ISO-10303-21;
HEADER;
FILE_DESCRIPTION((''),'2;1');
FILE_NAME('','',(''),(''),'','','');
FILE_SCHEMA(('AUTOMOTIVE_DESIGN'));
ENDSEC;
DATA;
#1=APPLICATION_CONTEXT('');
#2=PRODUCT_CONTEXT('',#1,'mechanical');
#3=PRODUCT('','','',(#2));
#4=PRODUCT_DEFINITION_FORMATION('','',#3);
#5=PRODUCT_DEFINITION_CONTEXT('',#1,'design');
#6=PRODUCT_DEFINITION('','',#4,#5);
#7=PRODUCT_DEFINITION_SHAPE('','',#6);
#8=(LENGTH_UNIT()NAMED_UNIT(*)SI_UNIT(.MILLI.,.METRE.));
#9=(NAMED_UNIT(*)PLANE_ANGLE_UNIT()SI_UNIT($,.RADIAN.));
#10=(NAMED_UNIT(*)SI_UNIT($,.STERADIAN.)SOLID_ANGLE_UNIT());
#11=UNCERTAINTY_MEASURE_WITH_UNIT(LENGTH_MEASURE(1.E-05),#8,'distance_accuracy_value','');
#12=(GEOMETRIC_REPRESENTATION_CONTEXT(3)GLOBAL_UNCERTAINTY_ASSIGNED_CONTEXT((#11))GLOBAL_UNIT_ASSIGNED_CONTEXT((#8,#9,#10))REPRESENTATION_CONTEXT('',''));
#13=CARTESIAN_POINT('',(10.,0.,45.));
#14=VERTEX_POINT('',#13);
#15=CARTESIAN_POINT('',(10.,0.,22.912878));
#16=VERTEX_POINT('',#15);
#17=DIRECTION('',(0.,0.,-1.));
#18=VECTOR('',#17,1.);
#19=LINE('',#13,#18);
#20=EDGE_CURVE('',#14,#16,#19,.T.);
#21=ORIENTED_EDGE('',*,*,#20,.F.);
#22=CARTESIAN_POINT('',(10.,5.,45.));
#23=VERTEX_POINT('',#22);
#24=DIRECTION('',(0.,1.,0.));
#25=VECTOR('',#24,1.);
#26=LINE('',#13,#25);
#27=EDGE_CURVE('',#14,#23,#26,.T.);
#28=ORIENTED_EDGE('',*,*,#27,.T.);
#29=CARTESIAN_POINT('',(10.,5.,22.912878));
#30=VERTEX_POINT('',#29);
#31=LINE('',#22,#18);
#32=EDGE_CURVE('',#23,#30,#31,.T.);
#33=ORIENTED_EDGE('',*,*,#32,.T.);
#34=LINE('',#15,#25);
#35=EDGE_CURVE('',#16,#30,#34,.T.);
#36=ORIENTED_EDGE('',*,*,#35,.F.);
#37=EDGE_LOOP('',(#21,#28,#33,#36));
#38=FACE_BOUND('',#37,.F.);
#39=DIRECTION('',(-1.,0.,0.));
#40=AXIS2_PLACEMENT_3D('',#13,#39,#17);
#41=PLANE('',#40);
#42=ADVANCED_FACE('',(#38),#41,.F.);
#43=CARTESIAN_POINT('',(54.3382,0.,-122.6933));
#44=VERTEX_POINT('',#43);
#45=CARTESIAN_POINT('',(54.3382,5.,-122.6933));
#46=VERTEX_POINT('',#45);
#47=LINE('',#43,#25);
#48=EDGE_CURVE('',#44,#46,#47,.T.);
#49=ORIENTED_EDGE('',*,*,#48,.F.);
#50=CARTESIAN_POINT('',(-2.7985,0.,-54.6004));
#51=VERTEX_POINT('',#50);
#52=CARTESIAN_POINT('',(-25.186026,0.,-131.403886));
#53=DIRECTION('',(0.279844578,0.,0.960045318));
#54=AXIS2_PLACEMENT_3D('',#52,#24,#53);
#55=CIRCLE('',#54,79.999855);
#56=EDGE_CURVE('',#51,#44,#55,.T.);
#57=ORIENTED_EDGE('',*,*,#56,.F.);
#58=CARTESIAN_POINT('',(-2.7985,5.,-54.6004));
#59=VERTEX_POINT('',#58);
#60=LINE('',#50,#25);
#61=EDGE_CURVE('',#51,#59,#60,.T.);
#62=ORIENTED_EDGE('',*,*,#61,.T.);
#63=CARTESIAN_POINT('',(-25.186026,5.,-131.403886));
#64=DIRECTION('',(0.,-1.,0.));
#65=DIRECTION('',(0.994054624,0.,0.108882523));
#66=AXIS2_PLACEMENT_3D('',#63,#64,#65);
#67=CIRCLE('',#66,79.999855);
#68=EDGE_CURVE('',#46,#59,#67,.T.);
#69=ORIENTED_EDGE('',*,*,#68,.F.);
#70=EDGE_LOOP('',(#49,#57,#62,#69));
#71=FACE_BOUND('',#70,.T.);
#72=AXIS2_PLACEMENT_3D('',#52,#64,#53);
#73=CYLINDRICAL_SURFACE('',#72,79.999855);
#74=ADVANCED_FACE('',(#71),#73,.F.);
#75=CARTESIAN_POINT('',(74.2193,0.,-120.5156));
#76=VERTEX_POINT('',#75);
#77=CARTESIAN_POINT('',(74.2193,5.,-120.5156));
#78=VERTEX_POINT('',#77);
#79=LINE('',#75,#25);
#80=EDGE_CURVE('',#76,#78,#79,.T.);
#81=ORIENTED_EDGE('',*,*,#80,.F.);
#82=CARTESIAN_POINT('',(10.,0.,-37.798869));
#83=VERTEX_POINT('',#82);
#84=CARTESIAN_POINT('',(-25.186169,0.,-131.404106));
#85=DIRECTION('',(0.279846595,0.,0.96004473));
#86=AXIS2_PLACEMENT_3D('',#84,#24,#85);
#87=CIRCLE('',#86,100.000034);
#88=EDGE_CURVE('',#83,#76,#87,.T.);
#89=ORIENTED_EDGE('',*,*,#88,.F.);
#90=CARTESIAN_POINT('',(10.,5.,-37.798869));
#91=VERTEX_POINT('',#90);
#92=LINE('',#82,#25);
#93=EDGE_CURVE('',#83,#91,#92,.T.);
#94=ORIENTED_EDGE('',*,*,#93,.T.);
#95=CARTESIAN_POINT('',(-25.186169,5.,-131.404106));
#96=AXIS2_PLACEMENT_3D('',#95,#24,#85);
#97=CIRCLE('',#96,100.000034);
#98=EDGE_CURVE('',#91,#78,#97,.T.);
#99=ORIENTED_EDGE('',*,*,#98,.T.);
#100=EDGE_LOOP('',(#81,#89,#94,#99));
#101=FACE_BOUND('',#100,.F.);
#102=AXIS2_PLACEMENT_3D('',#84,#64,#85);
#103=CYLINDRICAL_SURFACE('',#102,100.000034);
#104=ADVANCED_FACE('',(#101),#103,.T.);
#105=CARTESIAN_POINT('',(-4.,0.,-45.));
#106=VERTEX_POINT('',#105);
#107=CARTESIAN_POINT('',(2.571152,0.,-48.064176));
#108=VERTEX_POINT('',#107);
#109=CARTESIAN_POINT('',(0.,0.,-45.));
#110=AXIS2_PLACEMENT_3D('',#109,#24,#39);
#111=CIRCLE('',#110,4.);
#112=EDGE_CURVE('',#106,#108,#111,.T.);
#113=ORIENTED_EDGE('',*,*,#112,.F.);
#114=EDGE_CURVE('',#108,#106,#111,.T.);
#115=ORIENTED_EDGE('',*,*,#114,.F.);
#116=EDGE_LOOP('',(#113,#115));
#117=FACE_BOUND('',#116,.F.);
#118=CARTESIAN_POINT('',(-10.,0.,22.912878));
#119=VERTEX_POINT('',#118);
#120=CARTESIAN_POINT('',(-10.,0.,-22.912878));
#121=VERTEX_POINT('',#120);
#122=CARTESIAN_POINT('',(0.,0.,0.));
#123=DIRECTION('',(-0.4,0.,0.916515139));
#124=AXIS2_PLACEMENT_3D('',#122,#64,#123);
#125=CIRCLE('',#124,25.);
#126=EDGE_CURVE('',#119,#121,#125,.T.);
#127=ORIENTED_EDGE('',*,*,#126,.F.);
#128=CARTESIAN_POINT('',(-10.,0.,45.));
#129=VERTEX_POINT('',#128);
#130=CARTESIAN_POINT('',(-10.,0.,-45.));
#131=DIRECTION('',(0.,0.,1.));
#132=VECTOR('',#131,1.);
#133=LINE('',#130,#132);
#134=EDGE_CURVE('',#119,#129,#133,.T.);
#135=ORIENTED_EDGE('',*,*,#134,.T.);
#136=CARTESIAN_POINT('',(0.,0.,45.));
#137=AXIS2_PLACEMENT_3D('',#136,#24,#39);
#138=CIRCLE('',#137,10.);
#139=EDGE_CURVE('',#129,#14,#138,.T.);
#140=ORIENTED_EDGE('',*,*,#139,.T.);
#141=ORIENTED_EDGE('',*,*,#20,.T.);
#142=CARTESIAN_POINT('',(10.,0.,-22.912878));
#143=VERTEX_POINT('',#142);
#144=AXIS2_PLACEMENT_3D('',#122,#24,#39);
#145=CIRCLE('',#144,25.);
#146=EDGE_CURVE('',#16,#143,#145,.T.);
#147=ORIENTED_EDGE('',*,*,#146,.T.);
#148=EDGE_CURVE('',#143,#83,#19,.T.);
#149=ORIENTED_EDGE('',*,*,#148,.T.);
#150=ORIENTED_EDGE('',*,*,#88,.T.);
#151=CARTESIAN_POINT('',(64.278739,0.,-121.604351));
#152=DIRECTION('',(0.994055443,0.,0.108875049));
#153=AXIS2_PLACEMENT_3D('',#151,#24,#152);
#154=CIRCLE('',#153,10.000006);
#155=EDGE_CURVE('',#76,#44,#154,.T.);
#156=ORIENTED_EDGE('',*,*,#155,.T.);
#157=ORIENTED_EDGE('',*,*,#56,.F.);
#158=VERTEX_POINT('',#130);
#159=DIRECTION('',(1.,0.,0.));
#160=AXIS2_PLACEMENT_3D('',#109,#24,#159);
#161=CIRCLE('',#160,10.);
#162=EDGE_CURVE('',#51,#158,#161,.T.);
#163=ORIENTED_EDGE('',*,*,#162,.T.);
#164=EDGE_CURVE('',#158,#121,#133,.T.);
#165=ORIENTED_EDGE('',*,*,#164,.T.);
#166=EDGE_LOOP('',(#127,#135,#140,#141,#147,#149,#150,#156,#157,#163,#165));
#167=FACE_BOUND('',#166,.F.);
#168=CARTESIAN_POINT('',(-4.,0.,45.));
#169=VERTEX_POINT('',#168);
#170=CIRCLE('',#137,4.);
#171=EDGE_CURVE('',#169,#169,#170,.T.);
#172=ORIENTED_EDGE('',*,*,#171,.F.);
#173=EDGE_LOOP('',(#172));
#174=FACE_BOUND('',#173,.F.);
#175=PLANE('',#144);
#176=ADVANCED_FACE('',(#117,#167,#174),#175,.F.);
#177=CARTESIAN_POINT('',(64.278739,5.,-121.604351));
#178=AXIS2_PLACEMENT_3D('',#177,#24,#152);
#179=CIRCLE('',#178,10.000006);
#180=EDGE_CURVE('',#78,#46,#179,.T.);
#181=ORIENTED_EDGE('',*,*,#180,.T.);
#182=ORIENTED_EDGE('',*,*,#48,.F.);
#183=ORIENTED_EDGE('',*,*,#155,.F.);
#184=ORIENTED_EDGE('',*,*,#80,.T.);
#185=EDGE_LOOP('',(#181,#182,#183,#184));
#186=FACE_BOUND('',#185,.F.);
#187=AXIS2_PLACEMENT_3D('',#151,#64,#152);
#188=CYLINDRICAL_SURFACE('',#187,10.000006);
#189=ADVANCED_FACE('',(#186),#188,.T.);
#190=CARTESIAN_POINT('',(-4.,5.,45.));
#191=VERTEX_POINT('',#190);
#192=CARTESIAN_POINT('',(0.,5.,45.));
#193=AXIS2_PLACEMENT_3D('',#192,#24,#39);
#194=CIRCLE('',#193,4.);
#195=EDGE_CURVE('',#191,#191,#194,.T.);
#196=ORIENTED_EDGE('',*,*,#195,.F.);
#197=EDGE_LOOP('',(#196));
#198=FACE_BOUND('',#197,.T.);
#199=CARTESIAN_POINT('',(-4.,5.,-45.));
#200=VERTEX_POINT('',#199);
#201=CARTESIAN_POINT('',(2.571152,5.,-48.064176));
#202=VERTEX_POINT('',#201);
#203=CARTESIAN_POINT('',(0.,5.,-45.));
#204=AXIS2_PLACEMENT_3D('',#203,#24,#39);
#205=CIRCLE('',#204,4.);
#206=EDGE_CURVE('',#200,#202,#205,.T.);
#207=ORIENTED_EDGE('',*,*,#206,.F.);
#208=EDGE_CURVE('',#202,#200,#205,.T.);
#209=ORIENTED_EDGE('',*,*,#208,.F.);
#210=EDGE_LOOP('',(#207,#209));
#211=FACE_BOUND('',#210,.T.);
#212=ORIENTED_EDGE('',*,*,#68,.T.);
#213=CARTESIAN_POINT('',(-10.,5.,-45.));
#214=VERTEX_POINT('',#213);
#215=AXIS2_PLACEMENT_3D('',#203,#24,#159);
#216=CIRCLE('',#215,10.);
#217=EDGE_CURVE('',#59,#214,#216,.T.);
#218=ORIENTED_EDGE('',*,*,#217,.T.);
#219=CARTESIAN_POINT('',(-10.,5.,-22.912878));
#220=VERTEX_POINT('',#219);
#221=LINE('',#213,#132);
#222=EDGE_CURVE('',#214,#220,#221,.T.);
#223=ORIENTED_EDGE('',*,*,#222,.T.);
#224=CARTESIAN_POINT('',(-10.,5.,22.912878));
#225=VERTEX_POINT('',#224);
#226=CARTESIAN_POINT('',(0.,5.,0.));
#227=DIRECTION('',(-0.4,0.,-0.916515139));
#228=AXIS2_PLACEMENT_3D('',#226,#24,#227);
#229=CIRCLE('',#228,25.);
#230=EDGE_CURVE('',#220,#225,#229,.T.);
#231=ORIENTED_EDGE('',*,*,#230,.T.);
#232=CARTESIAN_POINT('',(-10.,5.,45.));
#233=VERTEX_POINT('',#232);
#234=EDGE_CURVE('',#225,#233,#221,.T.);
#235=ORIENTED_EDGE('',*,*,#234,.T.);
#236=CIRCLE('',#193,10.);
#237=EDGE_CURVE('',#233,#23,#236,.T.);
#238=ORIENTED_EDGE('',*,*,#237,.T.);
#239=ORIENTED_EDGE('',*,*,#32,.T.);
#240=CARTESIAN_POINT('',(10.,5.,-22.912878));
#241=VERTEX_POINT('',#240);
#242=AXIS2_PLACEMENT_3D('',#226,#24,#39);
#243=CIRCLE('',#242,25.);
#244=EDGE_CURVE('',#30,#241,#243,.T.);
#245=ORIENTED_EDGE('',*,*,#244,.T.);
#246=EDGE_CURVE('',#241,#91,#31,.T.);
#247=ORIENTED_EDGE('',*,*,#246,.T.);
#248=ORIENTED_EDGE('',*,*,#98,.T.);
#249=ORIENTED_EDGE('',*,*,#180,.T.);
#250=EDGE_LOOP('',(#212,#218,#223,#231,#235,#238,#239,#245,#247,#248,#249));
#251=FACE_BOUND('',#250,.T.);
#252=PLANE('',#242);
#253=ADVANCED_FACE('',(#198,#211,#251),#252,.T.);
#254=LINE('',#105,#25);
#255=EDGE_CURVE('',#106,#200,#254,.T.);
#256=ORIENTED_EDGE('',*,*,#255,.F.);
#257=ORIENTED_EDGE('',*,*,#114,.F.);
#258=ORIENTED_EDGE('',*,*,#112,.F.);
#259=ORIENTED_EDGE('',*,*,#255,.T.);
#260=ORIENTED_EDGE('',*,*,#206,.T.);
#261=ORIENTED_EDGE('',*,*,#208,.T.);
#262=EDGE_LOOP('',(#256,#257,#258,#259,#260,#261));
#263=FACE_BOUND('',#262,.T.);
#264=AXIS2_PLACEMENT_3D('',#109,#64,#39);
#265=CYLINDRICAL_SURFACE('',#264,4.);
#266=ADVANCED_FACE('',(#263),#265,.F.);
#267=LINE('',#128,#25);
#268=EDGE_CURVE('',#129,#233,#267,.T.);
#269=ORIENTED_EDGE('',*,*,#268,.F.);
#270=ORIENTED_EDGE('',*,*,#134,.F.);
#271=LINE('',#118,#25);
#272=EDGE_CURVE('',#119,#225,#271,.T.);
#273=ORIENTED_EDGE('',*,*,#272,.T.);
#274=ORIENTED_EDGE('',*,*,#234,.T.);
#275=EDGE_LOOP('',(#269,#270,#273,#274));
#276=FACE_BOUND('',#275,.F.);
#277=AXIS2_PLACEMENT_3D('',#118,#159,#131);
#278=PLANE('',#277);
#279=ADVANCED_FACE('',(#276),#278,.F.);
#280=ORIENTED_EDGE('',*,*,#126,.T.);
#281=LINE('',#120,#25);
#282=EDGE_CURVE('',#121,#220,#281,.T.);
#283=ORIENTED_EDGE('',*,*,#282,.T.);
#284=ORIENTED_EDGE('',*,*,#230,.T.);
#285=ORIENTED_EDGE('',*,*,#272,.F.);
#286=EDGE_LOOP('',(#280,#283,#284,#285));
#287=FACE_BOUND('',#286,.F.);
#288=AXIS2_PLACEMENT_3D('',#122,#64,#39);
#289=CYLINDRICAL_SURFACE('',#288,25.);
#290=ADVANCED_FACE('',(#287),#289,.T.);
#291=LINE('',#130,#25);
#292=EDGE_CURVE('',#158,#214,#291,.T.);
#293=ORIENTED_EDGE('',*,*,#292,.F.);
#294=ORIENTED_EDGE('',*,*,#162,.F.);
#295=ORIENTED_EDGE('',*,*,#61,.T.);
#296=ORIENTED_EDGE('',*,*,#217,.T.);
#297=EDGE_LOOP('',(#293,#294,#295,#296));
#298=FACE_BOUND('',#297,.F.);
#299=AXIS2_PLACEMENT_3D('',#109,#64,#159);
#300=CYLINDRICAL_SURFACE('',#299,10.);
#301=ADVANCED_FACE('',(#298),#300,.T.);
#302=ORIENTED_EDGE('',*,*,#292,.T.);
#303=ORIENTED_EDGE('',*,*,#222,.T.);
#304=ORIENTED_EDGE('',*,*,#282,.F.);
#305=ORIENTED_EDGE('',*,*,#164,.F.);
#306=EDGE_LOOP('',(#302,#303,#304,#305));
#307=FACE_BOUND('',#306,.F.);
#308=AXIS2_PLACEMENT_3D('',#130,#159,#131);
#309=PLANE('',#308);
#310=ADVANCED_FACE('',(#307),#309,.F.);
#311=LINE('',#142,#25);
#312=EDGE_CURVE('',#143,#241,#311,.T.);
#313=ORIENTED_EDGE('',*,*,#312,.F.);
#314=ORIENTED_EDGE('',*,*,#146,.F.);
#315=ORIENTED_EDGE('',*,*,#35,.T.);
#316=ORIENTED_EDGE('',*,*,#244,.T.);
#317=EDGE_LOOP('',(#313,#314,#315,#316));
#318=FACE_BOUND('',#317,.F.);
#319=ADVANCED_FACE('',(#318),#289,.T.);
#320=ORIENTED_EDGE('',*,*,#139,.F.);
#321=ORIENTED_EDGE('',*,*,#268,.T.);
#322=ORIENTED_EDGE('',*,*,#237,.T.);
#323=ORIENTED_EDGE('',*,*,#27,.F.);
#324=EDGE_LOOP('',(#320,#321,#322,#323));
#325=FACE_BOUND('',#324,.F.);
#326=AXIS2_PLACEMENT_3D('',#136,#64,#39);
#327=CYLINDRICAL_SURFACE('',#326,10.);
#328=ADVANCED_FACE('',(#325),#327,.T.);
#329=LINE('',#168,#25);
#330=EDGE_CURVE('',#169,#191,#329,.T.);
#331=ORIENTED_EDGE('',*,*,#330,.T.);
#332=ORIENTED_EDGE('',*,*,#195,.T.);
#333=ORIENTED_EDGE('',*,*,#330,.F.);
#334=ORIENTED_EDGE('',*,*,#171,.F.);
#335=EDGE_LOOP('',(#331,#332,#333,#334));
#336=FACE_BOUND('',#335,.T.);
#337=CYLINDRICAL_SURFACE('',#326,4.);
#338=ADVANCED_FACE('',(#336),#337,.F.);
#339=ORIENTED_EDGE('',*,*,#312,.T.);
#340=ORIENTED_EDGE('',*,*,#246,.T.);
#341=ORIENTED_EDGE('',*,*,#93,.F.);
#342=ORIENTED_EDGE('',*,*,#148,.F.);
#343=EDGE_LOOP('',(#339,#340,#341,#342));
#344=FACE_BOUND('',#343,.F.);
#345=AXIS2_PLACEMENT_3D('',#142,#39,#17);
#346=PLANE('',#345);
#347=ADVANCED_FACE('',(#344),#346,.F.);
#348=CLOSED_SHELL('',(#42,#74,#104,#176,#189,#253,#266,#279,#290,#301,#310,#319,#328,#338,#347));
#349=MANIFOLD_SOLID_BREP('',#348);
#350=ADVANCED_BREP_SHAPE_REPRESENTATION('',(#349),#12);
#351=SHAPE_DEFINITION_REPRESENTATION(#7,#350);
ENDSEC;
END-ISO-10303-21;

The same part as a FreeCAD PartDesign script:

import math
import FreeCAD as App
import Part
import Sketcher
Q = App.Units.Quantity

doc = App.newDocument("Part")
body = doc.addObject("PartDesign::Body", "Body")

sketch1 = body.newObject("Sketcher::SketchObject", "Sketch")
sketch1.AttachmentSupport = (doc.getObject("XZ_Plane"), [""])
sketch1.MapMode = "FlatFace"
sketch1.addGeometry(Part.ArcOfCircle(Part.Circle(App.Vector(0, 45, 0), App.Vector(0, 0, 1), 10), math.radians(0), math.radians(180)), False)
sketch1.addGeometry(Part.LineSegment(App.Vector(10, 45, 0), App.Vector(10, 22.9, 0)), False)
sketch1.addGeometry(Part.ArcOfCircle(Part.Circle(App.Vector(0, 0, 0), App.Vector(0, 0, 1), 25), math.radians(-66), math.radians(66)), False)
sketch1.addGeometry(Part.LineSegment(App.Vector(10, -22.9, 0), App.Vector(10, -37.8, 0)), False)
sketch1.addGeometry(Part.ArcOfCircle(Part.Circle(App.Vector(-25.2, -131.4, 0), App.Vector(0, 0, 1), 100), math.radians(6), math.radians(69)), False)
sketch1.addGeometry(Part.ArcOfCircle(Part.Circle(App.Vector(64.3, -121.6, 0), App.Vector(0, 0, 1), 10), math.radians(-174), math.radians(6)), False)
sketch1.addGeometry(Part.ArcOfCircle(Part.Circle(App.Vector(-25.2, -131.4, 0), App.Vector(0, 0, 1), 80), math.radians(6), math.radians(74)), False)
sketch1.addGeometry(Part.ArcOfCircle(Part.Circle(App.Vector(0, -45, 0), App.Vector(0, 0, 1), 10), math.radians(180), math.radians(254)), False)
sketch1.addGeometry(Part.LineSegment(App.Vector(-10, -45, 0), App.Vector(-10, -22.9, 0)), False)
sketch1.addGeometry(Part.ArcOfCircle(Part.Circle(App.Vector(0, 0, 0), App.Vector(0, 0, 1), 25), math.radians(114), math.radians(246)), False)
sketch1.addGeometry(Part.LineSegment(App.Vector(-10, 22.9, 0), App.Vector(-10, 45, 0)), False)
sketch1.addGeometry(Part.Circle(App.Vector(0, 45, 0), App.Vector(0, 0, 1), 4), False)
sketch1.addGeometry(Part.Circle(App.Vector(0, -45, 0), App.Vector(0, 0, 1), 4), False)
sketch1.addConstraint(Sketcher.Constraint("Tangent", 0, 1, 1, 1))
sketch1.addConstraint(Sketcher.Constraint("Coincident", 1, 2, 2, 2))
sketch1.addConstraint(Sketcher.Constraint("Coincident", 2, 1, 3, 1))
sketch1.addConstraint(Sketcher.Constraint("Coincident", 3, 2, 4, 2))
sketch1.addConstraint(Sketcher.Constraint("Tangent", 4, 1, 5, 2))
sketch1.addConstraint(Sketcher.Constraint("Tangent", 5, 1, 6, 1))
sketch1.addConstraint(Sketcher.Constraint("Tangent", 6, 2, 7, 2))
sketch1.addConstraint(Sketcher.Constraint("Tangent", 7, 1, 8, 1))
sketch1.addConstraint(Sketcher.Constraint("Coincident", 8, 2, 9, 2))
sketch1.addConstraint(Sketcher.Constraint("Coincident", 9, 1, 10, 1))
sketch1.addConstraint(Sketcher.Constraint("Tangent", 10, 2, 0, 2))
sketch1.addConstraint(Sketcher.Constraint("Vertical", 1))
sketch1.addConstraint(Sketcher.Constraint("Vertical", 3))
sketch1.addConstraint(Sketcher.Constraint("Vertical", 8))
sketch1.addConstraint(Sketcher.Constraint("Vertical", 10))
sketch1.addConstraint(Sketcher.Constraint("Coincident", 2, 3, -1, 1))
sketch1.addConstraint(Sketcher.Constraint("Coincident", 9, 3, -1, 1))
sketch1.addConstraint(Sketcher.Constraint("Coincident", 6, 3, 4, 3))
sketch1.addConstraint(Sketcher.Constraint("Coincident", 11, 3, 0, 3))
sketch1.addConstraint(Sketcher.Constraint("Coincident", 12, 3, 7, 3))
sketch1.addConstraint(Sketcher.Constraint("Equal", 0, 5))
sketch1.addConstraint(Sketcher.Constraint("Equal", 5, 7))
sketch1.addConstraint(Sketcher.Constraint("Equal", 2, 9))
sketch1.addConstraint(Sketcher.Constraint("Equal", 11, 12))
sketch1.addConstraint(Sketcher.Constraint("Symmetric", 0, 3, 7, 3, -1, 1))
sketch1.addConstraint(Sketcher.Constraint("PointOnObject", 0, 3, -2))
sketch1.addConstraint(Sketcher.Constraint("Horizontal", 2, 1, 8, 2))
sketch1.addConstraint(Sketcher.Constraint("Diameter", 11, Q("8 mm")))
sketch1.addConstraint(Sketcher.Constraint("Radius", 0, Q("10 mm")))
sketch1.addConstraint(Sketcher.Constraint("Radius", 2, Q("25 mm")))
sketch1.addConstraint(Sketcher.Constraint("Radius", 4, Q("100 mm")))
sketch1.addConstraint(Sketcher.Constraint("DistanceY", 7, 3, 0, 3, Q("90 mm")))
sketch1.addConstraint(Sketcher.Constraint("DistanceY", 3, 2, 3, 1, Q("14.886 mm")))
sketch1.addConstraint(Sketcher.Constraint("DistanceX", 4, 3, 5, 3, Q("89.465 mm")))
pad1 = body.newObject("PartDesign::Pad", "Pad")
pad1.Profile = sketch1
pad1.Length = 5
pad1.Reversed = True

doc.recompute()
